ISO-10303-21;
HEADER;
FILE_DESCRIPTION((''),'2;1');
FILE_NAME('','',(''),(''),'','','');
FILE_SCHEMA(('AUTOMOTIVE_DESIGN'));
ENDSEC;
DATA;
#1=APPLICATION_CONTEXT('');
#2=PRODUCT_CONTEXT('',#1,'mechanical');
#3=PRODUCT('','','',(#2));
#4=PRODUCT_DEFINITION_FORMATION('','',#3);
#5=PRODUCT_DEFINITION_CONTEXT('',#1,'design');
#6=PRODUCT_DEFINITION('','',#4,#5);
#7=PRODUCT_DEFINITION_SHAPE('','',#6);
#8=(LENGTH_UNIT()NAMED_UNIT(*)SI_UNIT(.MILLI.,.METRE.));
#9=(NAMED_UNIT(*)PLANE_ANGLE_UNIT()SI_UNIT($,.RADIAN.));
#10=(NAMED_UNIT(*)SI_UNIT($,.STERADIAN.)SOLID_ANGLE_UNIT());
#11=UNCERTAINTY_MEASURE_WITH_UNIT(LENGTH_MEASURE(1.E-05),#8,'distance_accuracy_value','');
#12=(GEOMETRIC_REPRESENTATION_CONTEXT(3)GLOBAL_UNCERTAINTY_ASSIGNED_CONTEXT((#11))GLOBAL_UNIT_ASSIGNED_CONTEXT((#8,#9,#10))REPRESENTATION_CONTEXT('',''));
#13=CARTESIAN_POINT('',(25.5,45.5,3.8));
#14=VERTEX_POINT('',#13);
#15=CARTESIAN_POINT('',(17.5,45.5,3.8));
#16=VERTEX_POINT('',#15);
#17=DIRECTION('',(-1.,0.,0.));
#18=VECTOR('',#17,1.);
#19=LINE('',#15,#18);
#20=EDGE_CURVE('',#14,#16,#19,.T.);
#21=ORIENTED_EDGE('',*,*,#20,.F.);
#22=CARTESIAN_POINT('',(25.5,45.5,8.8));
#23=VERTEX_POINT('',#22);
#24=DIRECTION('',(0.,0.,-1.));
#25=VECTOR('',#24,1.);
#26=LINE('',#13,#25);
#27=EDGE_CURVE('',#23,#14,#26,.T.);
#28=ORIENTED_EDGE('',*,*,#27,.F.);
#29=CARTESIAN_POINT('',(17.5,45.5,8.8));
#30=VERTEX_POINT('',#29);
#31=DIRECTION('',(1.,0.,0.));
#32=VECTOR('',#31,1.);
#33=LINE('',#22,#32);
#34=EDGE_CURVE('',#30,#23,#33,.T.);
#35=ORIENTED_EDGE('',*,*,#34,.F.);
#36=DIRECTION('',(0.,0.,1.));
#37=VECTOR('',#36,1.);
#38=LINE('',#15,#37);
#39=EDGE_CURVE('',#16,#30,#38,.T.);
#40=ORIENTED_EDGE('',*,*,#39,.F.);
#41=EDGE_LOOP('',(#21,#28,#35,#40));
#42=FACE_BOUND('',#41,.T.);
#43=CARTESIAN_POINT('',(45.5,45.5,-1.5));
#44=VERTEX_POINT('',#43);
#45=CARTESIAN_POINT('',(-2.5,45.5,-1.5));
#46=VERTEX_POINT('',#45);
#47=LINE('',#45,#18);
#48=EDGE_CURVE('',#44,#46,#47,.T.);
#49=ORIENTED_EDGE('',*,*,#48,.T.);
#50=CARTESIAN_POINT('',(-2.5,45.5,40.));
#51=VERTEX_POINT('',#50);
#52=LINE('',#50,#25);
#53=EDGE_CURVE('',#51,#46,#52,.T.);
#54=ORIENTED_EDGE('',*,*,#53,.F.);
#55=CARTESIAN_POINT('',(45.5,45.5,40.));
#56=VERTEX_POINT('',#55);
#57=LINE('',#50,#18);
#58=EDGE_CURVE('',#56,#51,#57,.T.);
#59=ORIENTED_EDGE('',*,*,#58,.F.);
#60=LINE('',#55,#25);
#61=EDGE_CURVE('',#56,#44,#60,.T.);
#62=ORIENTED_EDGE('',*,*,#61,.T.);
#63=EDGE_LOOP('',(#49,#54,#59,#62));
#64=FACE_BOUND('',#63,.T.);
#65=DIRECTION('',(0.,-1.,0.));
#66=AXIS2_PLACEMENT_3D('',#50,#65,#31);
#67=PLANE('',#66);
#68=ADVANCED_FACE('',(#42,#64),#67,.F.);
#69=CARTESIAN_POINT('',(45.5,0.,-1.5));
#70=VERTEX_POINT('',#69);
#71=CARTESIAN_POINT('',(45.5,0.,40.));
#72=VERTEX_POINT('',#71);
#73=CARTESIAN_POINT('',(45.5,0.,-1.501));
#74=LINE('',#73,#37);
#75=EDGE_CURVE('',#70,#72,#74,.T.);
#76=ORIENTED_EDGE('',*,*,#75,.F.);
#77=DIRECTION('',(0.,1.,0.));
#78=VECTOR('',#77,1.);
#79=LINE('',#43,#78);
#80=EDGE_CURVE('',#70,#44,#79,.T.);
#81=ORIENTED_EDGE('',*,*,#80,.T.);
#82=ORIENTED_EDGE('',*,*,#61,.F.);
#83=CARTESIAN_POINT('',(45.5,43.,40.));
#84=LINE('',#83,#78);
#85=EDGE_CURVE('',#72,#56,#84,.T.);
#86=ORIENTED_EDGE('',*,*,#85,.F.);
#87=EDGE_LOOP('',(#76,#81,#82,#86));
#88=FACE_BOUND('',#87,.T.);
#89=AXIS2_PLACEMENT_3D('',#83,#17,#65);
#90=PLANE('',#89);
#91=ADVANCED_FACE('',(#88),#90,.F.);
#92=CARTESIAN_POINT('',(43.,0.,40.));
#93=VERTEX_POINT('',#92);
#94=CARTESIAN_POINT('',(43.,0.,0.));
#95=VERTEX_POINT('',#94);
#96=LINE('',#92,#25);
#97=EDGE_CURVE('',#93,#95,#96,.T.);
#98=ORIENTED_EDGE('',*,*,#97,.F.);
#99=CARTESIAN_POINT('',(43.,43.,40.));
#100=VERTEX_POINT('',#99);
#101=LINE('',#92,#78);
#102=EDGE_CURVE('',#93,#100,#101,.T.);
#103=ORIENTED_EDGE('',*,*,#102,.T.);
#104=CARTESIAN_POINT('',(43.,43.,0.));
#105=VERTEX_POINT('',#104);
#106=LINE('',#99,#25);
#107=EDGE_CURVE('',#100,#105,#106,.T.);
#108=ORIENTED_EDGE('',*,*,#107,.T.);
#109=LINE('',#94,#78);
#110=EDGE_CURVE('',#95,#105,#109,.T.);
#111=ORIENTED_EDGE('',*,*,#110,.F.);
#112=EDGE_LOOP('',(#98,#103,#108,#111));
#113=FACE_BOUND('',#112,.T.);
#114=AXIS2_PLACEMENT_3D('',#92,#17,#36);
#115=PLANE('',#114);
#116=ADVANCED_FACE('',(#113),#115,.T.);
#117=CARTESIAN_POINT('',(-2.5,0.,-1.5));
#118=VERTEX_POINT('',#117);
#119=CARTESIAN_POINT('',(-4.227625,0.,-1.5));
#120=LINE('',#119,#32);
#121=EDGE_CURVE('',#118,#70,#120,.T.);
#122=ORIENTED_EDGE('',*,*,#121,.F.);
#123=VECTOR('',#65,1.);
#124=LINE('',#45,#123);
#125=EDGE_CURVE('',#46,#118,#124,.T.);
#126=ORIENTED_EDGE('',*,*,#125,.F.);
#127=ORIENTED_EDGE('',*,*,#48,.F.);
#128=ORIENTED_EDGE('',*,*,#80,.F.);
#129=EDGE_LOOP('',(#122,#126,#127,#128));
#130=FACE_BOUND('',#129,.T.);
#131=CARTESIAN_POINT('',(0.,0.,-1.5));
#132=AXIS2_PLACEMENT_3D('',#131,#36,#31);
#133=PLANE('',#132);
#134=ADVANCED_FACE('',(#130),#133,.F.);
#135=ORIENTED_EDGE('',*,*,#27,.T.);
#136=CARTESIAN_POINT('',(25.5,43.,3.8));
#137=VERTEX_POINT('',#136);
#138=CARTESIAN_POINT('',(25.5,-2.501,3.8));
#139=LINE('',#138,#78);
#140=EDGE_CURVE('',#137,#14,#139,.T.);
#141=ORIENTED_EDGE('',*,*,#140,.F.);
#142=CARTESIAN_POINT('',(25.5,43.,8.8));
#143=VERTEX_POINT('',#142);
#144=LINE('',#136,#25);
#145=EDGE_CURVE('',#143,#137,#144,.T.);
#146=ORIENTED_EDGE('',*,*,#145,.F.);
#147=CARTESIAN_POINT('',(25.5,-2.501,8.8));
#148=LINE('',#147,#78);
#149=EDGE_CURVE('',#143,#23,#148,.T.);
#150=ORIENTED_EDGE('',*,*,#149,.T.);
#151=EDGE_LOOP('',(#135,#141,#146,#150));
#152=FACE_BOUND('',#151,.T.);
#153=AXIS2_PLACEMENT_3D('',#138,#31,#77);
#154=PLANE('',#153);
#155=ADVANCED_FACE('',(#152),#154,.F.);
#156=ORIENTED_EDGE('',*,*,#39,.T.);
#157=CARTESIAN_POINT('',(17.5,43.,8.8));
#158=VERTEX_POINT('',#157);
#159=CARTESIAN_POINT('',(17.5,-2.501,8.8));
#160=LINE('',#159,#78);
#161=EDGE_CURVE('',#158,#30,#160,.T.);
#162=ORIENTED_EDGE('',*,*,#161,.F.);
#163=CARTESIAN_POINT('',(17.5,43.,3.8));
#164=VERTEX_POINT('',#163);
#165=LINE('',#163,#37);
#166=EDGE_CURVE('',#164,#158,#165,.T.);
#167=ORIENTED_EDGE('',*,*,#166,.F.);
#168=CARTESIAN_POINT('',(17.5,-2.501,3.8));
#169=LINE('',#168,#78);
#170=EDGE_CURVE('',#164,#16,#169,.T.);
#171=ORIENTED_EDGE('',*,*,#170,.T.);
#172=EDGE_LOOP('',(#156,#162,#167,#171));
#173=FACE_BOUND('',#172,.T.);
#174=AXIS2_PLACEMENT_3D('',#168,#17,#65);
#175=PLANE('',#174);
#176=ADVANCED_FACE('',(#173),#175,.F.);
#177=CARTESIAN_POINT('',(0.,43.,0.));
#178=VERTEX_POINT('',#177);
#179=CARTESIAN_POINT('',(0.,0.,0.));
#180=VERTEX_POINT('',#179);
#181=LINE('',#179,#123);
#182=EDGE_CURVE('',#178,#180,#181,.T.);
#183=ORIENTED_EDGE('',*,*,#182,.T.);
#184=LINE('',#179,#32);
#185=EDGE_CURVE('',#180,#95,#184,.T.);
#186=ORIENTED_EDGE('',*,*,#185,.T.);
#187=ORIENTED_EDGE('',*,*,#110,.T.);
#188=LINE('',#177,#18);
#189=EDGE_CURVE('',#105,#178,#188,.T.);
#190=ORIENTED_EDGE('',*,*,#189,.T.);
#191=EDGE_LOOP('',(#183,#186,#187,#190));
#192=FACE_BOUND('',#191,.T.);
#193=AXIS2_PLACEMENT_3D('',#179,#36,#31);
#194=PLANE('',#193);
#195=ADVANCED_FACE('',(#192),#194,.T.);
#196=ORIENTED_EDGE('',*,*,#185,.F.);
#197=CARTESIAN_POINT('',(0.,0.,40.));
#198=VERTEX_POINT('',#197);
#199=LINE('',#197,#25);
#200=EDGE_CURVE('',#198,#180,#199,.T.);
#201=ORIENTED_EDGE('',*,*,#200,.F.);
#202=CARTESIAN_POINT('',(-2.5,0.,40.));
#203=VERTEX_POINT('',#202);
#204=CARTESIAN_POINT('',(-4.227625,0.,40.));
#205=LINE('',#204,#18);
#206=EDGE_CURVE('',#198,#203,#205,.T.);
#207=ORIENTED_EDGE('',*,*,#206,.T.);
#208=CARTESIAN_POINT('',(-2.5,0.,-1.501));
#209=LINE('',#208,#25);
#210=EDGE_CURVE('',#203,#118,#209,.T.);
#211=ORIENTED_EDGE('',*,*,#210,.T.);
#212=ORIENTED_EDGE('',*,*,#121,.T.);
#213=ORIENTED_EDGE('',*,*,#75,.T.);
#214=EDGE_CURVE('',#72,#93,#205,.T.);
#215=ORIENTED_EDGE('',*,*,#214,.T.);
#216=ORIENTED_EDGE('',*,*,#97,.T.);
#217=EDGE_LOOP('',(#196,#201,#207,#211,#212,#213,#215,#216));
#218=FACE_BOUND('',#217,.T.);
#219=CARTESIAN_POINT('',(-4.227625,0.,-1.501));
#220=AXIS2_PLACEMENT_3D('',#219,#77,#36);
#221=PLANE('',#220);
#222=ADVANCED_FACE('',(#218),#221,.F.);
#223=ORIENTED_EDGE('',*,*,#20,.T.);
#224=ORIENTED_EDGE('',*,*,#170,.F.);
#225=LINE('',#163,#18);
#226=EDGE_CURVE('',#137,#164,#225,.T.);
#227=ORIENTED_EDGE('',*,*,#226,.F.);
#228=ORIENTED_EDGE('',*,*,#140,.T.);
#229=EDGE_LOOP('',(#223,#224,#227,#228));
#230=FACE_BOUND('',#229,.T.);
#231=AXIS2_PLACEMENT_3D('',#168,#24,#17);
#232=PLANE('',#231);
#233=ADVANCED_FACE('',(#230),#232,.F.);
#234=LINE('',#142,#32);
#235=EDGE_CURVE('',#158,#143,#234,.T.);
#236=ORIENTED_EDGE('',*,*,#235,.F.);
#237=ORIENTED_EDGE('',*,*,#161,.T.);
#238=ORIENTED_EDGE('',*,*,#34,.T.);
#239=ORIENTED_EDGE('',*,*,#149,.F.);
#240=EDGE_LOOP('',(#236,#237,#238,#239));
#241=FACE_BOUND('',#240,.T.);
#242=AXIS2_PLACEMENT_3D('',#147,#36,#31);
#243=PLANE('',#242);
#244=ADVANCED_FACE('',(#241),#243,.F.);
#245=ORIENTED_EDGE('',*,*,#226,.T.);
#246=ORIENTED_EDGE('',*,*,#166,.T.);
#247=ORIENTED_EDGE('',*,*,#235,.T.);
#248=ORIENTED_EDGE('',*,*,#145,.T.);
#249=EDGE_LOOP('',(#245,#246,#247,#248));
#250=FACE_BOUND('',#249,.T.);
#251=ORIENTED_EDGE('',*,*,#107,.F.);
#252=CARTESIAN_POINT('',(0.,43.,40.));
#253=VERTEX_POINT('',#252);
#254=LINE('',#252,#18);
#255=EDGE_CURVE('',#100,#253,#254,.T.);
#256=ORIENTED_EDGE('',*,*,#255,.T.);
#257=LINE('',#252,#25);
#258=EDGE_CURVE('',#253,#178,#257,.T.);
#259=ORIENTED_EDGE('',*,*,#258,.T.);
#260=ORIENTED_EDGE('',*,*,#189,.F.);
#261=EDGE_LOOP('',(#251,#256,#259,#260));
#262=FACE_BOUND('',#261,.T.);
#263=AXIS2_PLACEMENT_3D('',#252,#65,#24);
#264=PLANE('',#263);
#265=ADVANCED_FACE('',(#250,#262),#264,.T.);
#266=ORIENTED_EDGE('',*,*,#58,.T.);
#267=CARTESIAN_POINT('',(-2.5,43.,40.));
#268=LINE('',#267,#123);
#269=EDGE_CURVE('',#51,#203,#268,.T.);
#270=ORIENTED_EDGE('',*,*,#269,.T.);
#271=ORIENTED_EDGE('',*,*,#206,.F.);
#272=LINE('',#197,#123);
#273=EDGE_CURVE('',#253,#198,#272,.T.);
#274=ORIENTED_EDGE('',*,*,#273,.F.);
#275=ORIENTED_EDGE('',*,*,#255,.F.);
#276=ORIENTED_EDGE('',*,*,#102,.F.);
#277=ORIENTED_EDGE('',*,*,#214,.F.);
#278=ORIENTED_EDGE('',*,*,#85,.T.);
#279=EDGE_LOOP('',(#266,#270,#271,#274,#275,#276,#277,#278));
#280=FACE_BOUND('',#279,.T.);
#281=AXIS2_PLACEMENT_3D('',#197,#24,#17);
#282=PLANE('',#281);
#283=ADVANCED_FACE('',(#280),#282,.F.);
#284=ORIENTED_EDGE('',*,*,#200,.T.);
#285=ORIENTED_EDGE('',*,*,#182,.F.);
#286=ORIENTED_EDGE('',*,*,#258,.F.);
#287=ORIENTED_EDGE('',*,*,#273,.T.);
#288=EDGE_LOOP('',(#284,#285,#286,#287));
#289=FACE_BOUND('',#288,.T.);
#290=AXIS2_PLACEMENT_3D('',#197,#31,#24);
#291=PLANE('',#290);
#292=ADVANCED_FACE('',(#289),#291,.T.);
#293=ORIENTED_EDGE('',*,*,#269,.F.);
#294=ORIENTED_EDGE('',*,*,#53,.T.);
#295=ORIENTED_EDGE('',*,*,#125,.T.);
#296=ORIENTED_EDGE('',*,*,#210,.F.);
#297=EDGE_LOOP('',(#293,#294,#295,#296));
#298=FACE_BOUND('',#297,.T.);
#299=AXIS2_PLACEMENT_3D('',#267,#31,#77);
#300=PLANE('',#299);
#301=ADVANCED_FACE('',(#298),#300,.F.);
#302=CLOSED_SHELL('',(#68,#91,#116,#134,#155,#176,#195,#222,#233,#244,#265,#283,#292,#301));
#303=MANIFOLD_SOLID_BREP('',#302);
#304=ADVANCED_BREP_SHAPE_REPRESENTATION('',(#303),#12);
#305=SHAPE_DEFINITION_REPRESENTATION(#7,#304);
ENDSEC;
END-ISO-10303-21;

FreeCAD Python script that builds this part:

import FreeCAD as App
import Part
import Sketcher
from FreeCAD import Vector


def add_polygon(sketch, points):
    """Adds a closed chain of lines whose ends are joined by coincident constraints."""
    first, n = sketch.GeometryCount, len(points)
    for a, b in zip(points, points[1:] + points[:1]):
        sketch.addGeometry(Part.LineSegment(App.Vector(*a, 0), App.Vector(*b, 0)), False)
    for i in range(n):
        sketch.addConstraint(Sketcher.Constraint("Coincident", first + i, 2, first + (i + 1) % n, 1))

doc = App.newDocument("Part")
params = doc.addObject("Spreadsheet::Sheet", "Params")
for row, (alias, value) in enumerate([
    ("sketch1_width", "48 mm"),
    ("sketch1_width2", "43 mm"),
    ("pad1_length", "40 mm"),
    ("sketch2_width", "48 mm"),
    ("pad2_length", "1.5 mm"),
    ("sketch3_width", "8 mm"),
    ("sketch3_height", "5 mm"),
], start=1):
    params.set(f"A{row}", alias)
    params.set(f"B{row}", "=" + value)
    params.setAlias(f"B{row}", alias)

body = doc.addObject("PartDesign::Body", "Body")

# Sketch on XY plane
sketch1 = body.newObject("Sketcher::SketchObject", "Sketch")
sketch1.AttachmentSupport = (doc.getObject("XY_Plane"), [""])
sketch1.MapMode = "FlatFace"
add_polygon(sketch1, [(-2, -2), (46, -2), (46, 46), (-2, 46)])  # lines 0-3
add_polygon(sketch1, [(43, 0), (0, 0), (0, 43), (43, 43)])  # lines 4-7
sketch1.addConstraint(Sketcher.Constraint("Horizontal", 0))
sketch1.addConstraint(Sketcher.Constraint("Vertical", 1))
sketch1.addConstraint(Sketcher.Constraint("Horizontal", 2))
sketch1.addConstraint(Sketcher.Constraint("Vertical", 3))
sketch1.addConstraint(Sketcher.Constraint("Horizontal", 4))
sketch1.addConstraint(Sketcher.Constraint("Vertical", 5))
sketch1.addConstraint(Sketcher.Constraint("Horizontal", 6))
sketch1.addConstraint(Sketcher.Constraint("Vertical", 7))
sketch1.addConstraint(Sketcher.Constraint("Coincident", 4, 2, -1, 1))
sketch1.addConstraint(Sketcher.Constraint("Equal", 2, 1))
sketch1.addConstraint(Sketcher.Constraint("Equal", 6, 5))
sketch1.addConstraint(Sketcher.Constraint("DistanceX", 0, 1, 0, 2, 48.0))
sketch1.addConstraint(Sketcher.Constraint("DistanceX", 4, 2, 4, 1, 43.0))
sketch1.addConstraint(Sketcher.Constraint("DistanceX", -1, 1, 0, 2, 45.5))
sketch1.addConstraint(Sketcher.Constraint("DistanceY", 0, 2, -1, 1, 2.5))
sketch1.setExpression("Constraints[19]", "Params.sketch1_width")
sketch1.setExpression("Constraints[20]", "Params.sketch1_width2")
pad1 = body.newObject("PartDesign::Pad", "Pad")
pad1.Profile = sketch1
pad1.setExpression("Length", "Params.pad1_length")

# Sketch on XY plane
sketch2 = body.newObject("Sketcher::SketchObject", "Sketch001")
sketch2.AttachmentSupport = (doc.getObject("XY_Plane"), [""])
sketch2.MapMode = "FlatFace"
add_polygon(sketch2, [(-2, 46), (-2, -2), (46, -2), (46, 46)])  # lines 0-3
sketch2.addConstraint(Sketcher.Constraint("Vertical", 0))
sketch2.addConstraint(Sketcher.Constraint("Horizontal", 1))
sketch2.addConstraint(Sketcher.Constraint("Vertical", 2))
sketch2.addConstraint(Sketcher.Constraint("Horizontal", 3))
sketch2.addConstraint(Sketcher.Constraint("Equal", 3, 0))
sketch2.addConstraint(Sketcher.Constraint("DistanceX", 1, 1, 1, 2, 48.0))
sketch2.addConstraint(Sketcher.Constraint("DistanceX", 0, 2, -1, 1, 2.5))
sketch2.addConstraint(Sketcher.Constraint("DistanceY", 0, 2, -1, 1, 2.5))
sketch2.setExpression("Constraints[9]", "Params.sketch2_width")
pad2 = body.newObject("PartDesign::Pad", "Pad001")
pad2.Profile = sketch2
pad2.setExpression("Length", "Params.pad2_length")
pad2.Reversed = True

# Sketch on XZ plane
sketch3 = body.newObject("Sketcher::SketchObject", "Sketch002")
sketch3.AttachmentSupport = (doc.getObject("XZ_Plane"), [""])
sketch3.MapMode = "FlatFace"
sketch3.AttachmentOffset = App.Placement(Vector(0, 0, -45.5), App.Rotation())
add_polygon(sketch3, [(18, 4), (18, 9), (26, 9), (26, 4)])  # lines 0-3
sketch3.addConstraint(Sketcher.Constraint("Vertical", 0))
sketch3.addConstraint(Sketcher.Constraint("Horizontal", 1))
sketch3.addConstraint(Sketcher.Constraint("Vertical", 2))
sketch3.addConstraint(Sketcher.Constraint("Horizontal", 3))
sketch3.addConstraint(Sketcher.Constraint("DistanceX", 1, 1, 1, 2, 8.0))
sketch3.addConstraint(Sketcher.Constraint("DistanceY", 0, 1, 0, 2, 5.0))
sketch3.addConstraint(Sketcher.Constraint("DistanceX", -1, 1, 0, 2, 17.5))
sketch3.addConstraint(Sketcher.Constraint("DistanceY", -1, 1, 0, 2, 8.8))
sketch3.setExpression("Constraints[8]", "Params.sketch3_width")
sketch3.setExpression("Constraints[9]", "Params.sketch3_height")
pocket1 = body.newObject("PartDesign::Pocket", "Pocket")
pocket1.Profile = sketch3
pocket1.Type = "UpToFirst"
pocket1.Reversed = True

# Sketch on XY plane
sketch4 = body.newObject("Sketcher::SketchObject", "Sketch003")
sketch4.AttachmentSupport = (doc.getObject("XY_Plane"), [""])
sketch4.MapMode = "FlatFace"
sketch4.AttachmentOffset = App.Placement(Vector(0, 0, 40), App.Rotation())
add_polygon(sketch4, [(-4.2, 0), (-4.2, -3.1), (50.6, -3.1), (50.6, 0)])  # lines 0-3
sketch4.addConstraint(Sketcher.Constraint("Vertical", 0))
sketch4.addConstraint(Sketcher.Constraint("Horizontal", 1))
sketch4.addConstraint(Sketcher.Constraint("Vertical", 2))
sketch4.addConstraint(Sketcher.Constraint("Horizontal", 3))
sketch4.addConstraint(Sketcher.Constraint("PointOnObject", 2, 2, -1))
sketch4.addConstraint(Sketcher.Constraint("DistanceX", 1, 1, 1, 2, 54.781223))
sketch4.addConstraint(Sketcher.Constraint("DistanceY", 0, 2, 0, 1, 3.078773))
sketch4.addConstraint(Sketcher.Constraint("DistanceX", 0, 2, -1, 1, 4.227625))
pocket2 = body.newObject("PartDesign::Pocket", "Pocket001")
pocket2.Profile = sketch4
pocket2.Type = "UpToFirst"

doc.recompute()
